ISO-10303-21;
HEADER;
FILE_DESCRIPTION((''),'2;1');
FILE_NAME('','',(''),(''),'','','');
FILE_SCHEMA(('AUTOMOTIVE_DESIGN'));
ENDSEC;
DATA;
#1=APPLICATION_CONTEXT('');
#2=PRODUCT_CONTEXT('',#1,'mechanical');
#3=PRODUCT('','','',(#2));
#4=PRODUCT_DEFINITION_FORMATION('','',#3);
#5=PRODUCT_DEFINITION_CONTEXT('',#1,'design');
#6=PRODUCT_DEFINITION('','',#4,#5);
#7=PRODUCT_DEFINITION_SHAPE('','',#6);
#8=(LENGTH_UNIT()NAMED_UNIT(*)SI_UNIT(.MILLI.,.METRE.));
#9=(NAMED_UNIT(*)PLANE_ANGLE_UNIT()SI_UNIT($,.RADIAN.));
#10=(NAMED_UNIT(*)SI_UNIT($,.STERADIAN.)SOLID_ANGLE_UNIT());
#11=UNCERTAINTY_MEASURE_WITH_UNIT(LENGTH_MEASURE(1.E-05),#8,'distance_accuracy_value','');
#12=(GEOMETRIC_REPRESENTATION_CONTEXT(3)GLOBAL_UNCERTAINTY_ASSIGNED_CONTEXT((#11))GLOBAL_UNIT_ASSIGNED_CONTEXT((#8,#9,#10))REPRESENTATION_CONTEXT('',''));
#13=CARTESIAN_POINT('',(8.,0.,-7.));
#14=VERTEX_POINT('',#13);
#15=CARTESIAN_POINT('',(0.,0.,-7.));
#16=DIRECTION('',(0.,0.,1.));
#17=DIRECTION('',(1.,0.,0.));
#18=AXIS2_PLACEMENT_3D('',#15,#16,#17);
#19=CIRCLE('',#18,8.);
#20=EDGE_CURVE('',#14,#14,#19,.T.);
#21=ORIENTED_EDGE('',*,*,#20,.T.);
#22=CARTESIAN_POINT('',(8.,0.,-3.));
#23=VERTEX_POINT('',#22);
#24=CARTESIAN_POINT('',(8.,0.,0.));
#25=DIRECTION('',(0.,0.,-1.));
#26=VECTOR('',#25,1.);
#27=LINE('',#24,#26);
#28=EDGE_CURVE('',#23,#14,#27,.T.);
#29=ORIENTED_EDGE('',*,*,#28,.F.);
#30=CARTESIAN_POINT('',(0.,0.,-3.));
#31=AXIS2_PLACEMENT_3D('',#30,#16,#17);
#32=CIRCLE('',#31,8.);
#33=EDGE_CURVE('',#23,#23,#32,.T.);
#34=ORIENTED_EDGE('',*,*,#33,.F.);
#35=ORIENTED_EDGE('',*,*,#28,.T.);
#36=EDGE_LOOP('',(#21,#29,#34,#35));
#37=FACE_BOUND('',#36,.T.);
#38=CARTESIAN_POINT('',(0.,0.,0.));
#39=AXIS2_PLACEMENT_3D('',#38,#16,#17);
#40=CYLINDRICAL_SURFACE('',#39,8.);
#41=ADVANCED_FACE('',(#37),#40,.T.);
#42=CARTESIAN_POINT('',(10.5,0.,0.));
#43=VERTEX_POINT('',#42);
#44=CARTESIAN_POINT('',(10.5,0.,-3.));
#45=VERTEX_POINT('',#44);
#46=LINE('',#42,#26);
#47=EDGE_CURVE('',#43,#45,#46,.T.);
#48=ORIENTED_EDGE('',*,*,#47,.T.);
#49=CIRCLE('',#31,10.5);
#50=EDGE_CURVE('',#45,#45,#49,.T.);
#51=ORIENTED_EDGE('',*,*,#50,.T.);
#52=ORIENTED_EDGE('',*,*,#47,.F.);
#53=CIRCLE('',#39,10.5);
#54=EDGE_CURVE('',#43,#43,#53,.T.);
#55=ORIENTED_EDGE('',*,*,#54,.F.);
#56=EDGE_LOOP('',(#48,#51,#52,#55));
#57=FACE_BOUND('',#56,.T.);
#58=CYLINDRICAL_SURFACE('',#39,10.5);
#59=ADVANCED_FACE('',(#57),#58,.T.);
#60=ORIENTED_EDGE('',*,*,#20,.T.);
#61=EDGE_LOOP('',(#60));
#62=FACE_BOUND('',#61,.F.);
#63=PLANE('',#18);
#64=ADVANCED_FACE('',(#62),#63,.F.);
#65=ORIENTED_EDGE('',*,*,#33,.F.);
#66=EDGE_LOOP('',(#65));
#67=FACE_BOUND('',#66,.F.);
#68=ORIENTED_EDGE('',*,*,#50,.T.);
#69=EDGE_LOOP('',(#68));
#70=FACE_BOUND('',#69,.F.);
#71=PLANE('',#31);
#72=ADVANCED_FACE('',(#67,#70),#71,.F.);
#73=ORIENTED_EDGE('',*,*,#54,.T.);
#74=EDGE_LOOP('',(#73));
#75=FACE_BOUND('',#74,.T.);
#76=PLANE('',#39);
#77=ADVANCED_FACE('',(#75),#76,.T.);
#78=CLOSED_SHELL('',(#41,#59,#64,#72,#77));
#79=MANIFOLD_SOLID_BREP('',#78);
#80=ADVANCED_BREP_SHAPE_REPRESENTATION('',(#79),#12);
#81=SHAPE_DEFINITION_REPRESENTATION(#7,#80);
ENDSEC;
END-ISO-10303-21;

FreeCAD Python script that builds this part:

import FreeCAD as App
import Part
import Sketcher
from FreeCAD import Vector
Q = App.Units.Quantity

doc = App.newDocument("Part")
body = doc.addObject("PartDesign::Body", "Body")

# Sketch on XY plane
sketch1 = body.newObject("Sketcher::SketchObject", "Sketch")
sketch1.AttachmentSupport = (doc.getObject("XY_Plane"), [""])
sketch1.MapMode = "FlatFace"
sketch1.addGeometry([
    Part.Circle(Vector(0, 0, 0), Vector(0, 0, 1), 10.5),
    Part.Circle(Vector(0, 0, 0), Vector(0, 0, 1), 8),
], False)
sketch1.addConstraint([
    Sketcher.Constraint("Coincident", 0, 3, -1, 1),
    Sketcher.Constraint("Coincident", 1, 3, -1, 1),
    Sketcher.Constraint("Diameter", 0, Q("21 mm")),
    Sketcher.Constraint("Diameter", 1, Q("16 mm")),
])
pad1 = body.newObject("PartDesign::Pad", "Pad")
pad1.Profile = sketch1
pad1.Length = 3
pad1.Reversed = True

# Sketch on XY plane
sketch2 = body.newObject("Sketcher::SketchObject", "Sketch001")
sketch2.AttachmentSupport = (doc.getObject("XY_Plane"), [""])
sketch2.MapMode = "FlatFace"
sketch2.addGeometry(Part.Circle(Vector(0, 0, 0), Vector(0, 0, 1), 8), False)
sketch2.addConstraint([
    Sketcher.Constraint("Coincident", 0, 3, -1, 1),
    Sketcher.Constraint("Diameter", 0, Q("16 mm")),
])
pad2 = body.newObject("PartDesign::Pad", "Pad001")
pad2.Profile = sketch2
pad2.Length = 7
pad2.Reversed = True

doc.recompute()
